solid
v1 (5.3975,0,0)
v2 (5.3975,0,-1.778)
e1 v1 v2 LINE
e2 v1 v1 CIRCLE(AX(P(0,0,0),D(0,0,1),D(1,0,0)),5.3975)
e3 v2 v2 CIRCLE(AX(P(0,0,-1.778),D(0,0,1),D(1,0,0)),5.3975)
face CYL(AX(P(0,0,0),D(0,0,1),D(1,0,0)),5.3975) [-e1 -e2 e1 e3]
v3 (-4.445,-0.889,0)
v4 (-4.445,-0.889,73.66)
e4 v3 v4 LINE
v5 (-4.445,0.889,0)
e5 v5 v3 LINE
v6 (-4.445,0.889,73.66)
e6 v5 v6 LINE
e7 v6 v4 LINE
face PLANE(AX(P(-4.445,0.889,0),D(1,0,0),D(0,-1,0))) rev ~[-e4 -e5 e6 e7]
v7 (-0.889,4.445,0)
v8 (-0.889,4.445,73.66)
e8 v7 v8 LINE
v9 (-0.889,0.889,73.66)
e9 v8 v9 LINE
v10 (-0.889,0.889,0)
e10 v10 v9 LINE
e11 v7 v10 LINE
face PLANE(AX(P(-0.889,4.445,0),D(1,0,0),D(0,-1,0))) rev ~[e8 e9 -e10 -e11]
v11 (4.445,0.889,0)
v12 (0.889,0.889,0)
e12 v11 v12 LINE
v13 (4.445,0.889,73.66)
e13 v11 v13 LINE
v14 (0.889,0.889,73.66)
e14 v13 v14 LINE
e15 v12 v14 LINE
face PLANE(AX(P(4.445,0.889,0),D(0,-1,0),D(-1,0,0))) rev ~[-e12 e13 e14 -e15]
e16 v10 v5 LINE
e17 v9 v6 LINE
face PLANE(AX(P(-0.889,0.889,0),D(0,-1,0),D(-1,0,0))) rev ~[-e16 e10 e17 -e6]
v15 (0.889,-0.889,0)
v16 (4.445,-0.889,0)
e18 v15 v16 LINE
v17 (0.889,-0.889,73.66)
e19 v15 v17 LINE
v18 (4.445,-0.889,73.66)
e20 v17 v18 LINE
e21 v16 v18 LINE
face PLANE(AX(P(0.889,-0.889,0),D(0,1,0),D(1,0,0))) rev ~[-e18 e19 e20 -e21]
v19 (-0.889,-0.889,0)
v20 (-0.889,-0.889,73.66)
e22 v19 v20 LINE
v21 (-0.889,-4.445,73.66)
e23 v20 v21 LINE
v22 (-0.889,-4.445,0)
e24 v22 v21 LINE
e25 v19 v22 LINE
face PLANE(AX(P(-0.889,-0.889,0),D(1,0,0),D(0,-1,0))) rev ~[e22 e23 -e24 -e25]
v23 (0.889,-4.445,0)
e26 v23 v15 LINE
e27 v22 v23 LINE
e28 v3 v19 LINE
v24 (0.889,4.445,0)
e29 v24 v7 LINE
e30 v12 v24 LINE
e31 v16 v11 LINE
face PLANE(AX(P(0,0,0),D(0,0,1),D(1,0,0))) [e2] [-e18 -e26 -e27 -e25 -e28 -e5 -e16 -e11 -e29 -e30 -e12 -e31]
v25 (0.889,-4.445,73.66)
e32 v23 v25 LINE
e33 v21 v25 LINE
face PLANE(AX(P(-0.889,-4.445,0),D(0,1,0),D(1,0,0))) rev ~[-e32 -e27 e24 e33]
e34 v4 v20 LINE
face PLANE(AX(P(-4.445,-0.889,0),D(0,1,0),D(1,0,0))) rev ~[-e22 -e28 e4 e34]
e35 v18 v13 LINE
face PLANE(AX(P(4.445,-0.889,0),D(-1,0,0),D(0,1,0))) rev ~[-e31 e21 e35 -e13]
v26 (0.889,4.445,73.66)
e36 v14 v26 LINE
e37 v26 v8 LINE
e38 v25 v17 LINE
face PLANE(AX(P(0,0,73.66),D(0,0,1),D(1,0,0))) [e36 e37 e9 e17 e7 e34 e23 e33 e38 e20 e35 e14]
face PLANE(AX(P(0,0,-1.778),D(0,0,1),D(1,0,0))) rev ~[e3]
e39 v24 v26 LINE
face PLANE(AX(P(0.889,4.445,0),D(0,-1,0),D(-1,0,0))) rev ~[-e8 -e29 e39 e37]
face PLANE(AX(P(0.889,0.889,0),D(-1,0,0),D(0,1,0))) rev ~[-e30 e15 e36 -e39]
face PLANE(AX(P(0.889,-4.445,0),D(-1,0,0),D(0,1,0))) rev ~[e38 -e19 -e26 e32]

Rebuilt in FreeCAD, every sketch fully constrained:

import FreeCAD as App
import Part
import Sketcher
Q = App.Units.Quantity

doc = App.newDocument("Part")
body = doc.addObject("PartDesign::Body", "Body")

# Sketch on XY plane
sketch1 = doc.addObject("Sketcher::SketchObject", "Sketch")
body.addObject(sketch1)
sketch1.AttachmentSupport = (doc.XY_Plane, [""])
sketch1.MapMode = "FlatFace"
sketch1.addGeometry([
    Part.LineSegment(App.Vector(0.9, 4.4, 0), App.Vector(-0.9, 4.4, 0)),  # 0
    Part.LineSegment(App.Vector(-0.9, 4.4, 0), App.Vector(-0.9, 0.9, 0)),  # 1
    Part.LineSegment(App.Vector(-0.9, 0.9, 0), App.Vector(-4.4, 0.9, 0)),  # 2
    Part.LineSegment(App.Vector(-4.4, 0.9, 0), App.Vector(-4.4, -0.9, 0)),  # 3
    Part.LineSegment(App.Vector(-4.4, -0.9, 0), App.Vector(-0.9, -0.9, 0)),  # 4
    Part.LineSegment(App.Vector(-0.9, -0.9, 0), App.Vector(-0.9, -4.4, 0)),  # 5
    Part.LineSegment(App.Vector(-0.9, -4.4, 0), App.Vector(0.9, -4.4, 0)),  # 6
    Part.LineSegment(App.Vector(0.9, -4.4, 0), App.Vector(0.9, -0.9, 0)),  # 7
    Part.LineSegment(App.Vector(0.9, -0.9, 0), App.Vector(4.4, -0.9, 0)),  # 8
    Part.LineSegment(App.Vector(4.4, -0.9, 0), App.Vector(4.4, 0.9, 0)),  # 9
    Part.LineSegment(App.Vector(4.4, 0.9, 0), App.Vector(0.9, 0.9, 0)),  # 10
    Part.LineSegment(App.Vector(0.9, 0.9, 0), App.Vector(0.9, 4.4, 0)),  # 11
], False)
sketch1.addConstraint([
    Sketcher.Constraint("Coincident", 0, 2, 1, 1),
    Sketcher.Constraint("Coincident", 1, 2, 2, 1),
    Sketcher.Constraint("Coincident", 2, 2, 3, 1),
    Sketcher.Constraint("Coincident", 3, 2, 4, 1),
    Sketcher.Constraint("Coincident", 4, 2, 5, 1),
    Sketcher.Constraint("Coincident", 5, 2, 6, 1),
    Sketcher.Constraint("Coincident", 6, 2, 7, 1),
    Sketcher.Constraint("Coincident", 7, 2, 8, 1),
    Sketcher.Constraint("Coincident", 8, 2, 9, 1),
    Sketcher.Constraint("Coincident", 9, 2, 10, 1),
    Sketcher.Constraint("Coincident", 10, 2, 11, 1),
    Sketcher.Constraint("Coincident", 11, 2, 0, 1),
    Sketcher.Constraint("Horizontal", 0),
    Sketcher.Constraint("Vertical", 1),
    Sketcher.Constraint("Horizontal", 2),
    Sketcher.Constraint("Vertical", 3),
    Sketcher.Constraint("Horizontal", 4),
    Sketcher.Constraint("Vertical", 5),
    Sketcher.Constraint("Horizontal", 6),
    Sketcher.Constraint("Vertical", 7),
    Sketcher.Constraint("Horizontal", 8),
    Sketcher.Constraint("Vertical", 9),
    Sketcher.Constraint("Horizontal", 10),
    Sketcher.Constraint("Vertical", 11),
    Sketcher.Constraint("Symmetric", 0, 2, 6, 2, -1, 1),
    Sketcher.Constraint("Symmetric", 2, 2, 8, 2, -1, 1),
    Sketcher.Constraint("Symmetric", 4, 2, 10, 2, -1, 1),
    Sketcher.Constraint("Symmetric", 4, 2, 7, 2, -2),
    Sketcher.Constraint("Equal", 10, 1),
    Sketcher.Constraint("Equal", 6, 3),
    Sketcher.Constraint("DistanceX", 0, 2, 0, 1, Q("0.07 in")),
    Sketcher.Constraint("DistanceX", 2, 2, 2, 1, Q("0.14 in")),
])
pad1 = doc.addObject("PartDesign::Pad", "Pad")
body.addObject(pad1)
pad1.Profile = sketch1
pad1.Length = Q("2.9 in")

# Sketch on XY plane
sketch2 = doc.addObject("Sketcher::SketchObject", "Sketch001")
body.addObject(sketch2)
sketch2.AttachmentSupport = (doc.XY_Plane, [""])
sketch2.MapMode = "FlatFace"
sketch2.addGeometry(Part.Circle(App.Vector(0, 0, 0), App.Vector(0, 0, 1), 5), False)
sketch2.addConstraint([
    Sketcher.Constraint("Coincident", 0, 3, -1, 1),
    Sketcher.Constraint("Diameter", 0, Q("0.425 in")),
])
pad2 = doc.addObject("PartDesign::Pad", "Pad001")
body.addObject(pad2)
pad2.Profile = sketch2
pad2.Length = Q("0.07 in")
pad2.Reversed = True

doc.recompute()
